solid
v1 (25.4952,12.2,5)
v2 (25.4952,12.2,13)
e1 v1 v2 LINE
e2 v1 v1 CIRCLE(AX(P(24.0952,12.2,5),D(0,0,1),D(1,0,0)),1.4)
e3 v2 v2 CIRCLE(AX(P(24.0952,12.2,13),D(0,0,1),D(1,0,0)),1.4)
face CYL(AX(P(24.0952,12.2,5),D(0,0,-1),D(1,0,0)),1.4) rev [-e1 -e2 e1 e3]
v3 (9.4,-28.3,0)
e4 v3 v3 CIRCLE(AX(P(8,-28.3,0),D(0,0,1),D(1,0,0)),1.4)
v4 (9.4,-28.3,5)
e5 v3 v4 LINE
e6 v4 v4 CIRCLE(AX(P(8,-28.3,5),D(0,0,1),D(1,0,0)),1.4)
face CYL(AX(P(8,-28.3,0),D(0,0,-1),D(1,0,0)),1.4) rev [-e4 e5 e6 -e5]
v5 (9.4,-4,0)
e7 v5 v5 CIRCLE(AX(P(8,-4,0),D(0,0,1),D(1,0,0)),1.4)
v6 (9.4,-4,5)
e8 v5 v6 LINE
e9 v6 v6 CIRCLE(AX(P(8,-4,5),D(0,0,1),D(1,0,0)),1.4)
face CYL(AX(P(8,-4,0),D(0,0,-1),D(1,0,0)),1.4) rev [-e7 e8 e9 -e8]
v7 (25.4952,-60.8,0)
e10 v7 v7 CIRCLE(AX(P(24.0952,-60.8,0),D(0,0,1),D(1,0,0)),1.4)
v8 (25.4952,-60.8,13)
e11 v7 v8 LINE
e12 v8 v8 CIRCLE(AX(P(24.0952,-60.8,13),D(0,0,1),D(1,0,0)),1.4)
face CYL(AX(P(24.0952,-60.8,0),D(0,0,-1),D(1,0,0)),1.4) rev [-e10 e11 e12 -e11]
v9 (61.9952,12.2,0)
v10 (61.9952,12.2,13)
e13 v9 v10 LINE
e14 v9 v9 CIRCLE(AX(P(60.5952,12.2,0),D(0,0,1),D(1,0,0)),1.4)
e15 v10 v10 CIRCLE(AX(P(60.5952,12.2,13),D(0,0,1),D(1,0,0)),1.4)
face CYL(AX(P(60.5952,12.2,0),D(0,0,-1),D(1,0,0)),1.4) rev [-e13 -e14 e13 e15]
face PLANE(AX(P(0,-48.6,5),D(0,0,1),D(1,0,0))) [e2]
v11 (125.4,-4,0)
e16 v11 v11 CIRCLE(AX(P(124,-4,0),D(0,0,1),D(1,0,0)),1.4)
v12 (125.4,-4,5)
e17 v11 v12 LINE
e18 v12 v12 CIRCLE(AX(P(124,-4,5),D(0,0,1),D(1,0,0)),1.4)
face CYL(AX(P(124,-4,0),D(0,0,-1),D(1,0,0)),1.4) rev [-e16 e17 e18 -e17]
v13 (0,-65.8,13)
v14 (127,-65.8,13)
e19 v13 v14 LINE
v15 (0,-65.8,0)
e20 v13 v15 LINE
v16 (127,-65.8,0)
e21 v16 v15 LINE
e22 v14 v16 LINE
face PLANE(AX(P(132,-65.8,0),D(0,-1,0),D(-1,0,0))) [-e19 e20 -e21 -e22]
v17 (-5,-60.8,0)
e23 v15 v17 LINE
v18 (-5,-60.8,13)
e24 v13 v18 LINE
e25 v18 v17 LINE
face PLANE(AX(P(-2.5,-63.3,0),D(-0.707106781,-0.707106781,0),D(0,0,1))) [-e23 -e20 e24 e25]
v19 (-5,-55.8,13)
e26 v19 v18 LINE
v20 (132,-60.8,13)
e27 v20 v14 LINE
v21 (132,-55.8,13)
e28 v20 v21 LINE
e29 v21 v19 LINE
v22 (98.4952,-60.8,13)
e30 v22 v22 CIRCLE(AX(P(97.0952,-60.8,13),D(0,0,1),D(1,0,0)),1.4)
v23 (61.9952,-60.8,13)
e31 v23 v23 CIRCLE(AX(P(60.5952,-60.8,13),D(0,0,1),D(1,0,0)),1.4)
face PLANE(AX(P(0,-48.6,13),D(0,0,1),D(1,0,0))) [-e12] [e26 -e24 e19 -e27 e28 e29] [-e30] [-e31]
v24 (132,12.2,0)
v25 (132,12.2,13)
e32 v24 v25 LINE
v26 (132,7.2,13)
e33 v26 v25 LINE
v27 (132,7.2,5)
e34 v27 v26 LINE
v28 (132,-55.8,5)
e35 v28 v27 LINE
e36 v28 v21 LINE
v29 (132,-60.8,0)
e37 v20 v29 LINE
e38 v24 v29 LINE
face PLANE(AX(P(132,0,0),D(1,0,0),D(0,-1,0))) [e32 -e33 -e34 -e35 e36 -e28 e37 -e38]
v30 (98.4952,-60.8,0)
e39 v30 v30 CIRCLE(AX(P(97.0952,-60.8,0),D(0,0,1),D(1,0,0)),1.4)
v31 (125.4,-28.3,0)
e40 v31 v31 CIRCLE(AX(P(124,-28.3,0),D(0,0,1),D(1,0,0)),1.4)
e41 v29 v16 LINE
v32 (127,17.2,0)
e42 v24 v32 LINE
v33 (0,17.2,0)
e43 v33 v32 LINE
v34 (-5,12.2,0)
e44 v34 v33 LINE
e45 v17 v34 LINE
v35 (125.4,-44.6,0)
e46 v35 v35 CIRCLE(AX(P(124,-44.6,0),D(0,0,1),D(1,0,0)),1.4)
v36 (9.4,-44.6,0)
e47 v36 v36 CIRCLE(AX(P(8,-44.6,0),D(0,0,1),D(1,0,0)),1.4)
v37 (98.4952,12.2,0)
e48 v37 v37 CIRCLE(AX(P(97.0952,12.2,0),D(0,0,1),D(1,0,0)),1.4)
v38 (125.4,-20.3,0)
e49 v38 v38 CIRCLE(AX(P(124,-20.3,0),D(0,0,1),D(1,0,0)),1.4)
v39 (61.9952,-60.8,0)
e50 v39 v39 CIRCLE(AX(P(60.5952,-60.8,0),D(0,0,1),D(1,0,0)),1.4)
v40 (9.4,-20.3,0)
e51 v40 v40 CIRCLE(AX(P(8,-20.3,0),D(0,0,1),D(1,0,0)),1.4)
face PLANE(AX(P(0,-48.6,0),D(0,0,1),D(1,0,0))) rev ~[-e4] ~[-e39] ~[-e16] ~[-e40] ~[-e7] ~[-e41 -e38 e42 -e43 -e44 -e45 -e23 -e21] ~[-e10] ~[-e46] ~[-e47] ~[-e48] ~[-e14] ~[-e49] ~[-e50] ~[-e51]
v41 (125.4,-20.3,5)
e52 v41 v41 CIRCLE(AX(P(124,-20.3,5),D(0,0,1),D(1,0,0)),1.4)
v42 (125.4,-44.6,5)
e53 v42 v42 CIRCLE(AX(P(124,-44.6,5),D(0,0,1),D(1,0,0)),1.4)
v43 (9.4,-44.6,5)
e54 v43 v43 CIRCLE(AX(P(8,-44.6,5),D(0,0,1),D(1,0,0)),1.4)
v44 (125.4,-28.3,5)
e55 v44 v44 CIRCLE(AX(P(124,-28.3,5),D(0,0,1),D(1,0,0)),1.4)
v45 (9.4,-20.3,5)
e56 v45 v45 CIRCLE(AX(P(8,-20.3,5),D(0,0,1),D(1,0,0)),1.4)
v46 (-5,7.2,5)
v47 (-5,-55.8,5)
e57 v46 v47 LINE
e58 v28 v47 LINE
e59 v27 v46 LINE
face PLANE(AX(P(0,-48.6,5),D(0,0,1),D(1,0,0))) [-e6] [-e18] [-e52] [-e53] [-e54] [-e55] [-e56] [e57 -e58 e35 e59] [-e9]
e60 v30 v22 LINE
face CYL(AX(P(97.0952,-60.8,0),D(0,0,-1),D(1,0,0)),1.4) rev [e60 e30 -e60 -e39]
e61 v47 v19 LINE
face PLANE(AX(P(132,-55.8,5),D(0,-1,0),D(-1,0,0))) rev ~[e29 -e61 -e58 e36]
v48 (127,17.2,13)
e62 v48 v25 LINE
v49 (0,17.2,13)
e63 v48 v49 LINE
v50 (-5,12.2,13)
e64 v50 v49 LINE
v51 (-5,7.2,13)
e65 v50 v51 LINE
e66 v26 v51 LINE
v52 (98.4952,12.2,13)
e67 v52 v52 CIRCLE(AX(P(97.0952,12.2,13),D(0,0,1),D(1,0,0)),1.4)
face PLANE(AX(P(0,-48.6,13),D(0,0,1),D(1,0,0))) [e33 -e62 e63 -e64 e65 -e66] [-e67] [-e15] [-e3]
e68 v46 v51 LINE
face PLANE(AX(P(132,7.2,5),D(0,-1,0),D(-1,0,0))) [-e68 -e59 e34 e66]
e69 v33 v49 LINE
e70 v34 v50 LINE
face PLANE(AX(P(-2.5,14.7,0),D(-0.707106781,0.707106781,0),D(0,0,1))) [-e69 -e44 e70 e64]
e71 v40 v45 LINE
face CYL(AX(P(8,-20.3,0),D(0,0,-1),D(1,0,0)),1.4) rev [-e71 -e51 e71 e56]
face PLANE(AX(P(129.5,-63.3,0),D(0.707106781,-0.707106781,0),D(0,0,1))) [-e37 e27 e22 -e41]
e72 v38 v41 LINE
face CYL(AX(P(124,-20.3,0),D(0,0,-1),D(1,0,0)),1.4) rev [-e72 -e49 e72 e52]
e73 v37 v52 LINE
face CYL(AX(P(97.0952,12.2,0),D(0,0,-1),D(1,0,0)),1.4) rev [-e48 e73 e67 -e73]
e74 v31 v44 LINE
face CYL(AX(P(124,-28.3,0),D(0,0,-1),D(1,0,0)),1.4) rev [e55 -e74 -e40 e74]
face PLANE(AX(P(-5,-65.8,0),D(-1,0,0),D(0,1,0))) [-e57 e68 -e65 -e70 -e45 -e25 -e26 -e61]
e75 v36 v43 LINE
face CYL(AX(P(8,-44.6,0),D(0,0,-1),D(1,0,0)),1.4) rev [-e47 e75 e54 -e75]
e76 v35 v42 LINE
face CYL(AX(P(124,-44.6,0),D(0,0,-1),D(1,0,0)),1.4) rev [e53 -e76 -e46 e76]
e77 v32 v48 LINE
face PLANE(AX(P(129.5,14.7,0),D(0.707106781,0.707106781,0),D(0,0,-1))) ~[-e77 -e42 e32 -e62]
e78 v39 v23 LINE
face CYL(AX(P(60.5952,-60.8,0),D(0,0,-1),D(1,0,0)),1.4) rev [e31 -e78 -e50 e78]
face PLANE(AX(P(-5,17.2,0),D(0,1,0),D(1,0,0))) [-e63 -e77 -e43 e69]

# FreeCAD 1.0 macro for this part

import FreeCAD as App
import Part
import Sketcher

V = App.Vector


def edges_at(feature, points):
    """Names of the edges that pass closest to the given points."""
    edges = feature.Shape.Edges
    near = lambda p: min(range(len(edges)), key=lambda i: edges[i].distToShape(Part.Vertex(*p))[0])
    return sorted({f"Edge{near(p) + 1}" for p in points})


def add_polygon(sketch, points):
    """Adds a closed chain of lines whose ends are joined by coincident constraints."""
    first, n = sketch.GeometryCount, len(points)
    for a, b in zip(points, points[1:] + points[:1]):
        sketch.addGeometry(Part.LineSegment(App.Vector(*a, 0), App.Vector(*b, 0)), False)
    for i in range(n):
        sketch.addConstraint(Sketcher.Constraint("Coincident", first + i, 2, first + (i + 1) % n, 1))

doc = App.newDocument("Part")
body = doc.addObject("PartDesign::Body", "Body")

sketch1 = body.newObject("Sketcher::SketchObject", "Sketch")
sketch1.AttachmentSupport = (doc.getObject("XY_Plane"), [""])
sketch1.MapMode = "FlatFace"
add_polygon(sketch1, [(132, 17.2), (-5, 17.2), (-5, -65.8), (132, -65.8)])
sketch1.addGeometry(Part.Circle(V(8, -44.6, 0), V(0, 0, 1), 1.4), False)
sketch1.addGeometry(Part.Circle(V(8, -28.3, 0), V(0, 0, 1), 1.4), False)
sketch1.addGeometry(Part.Circle(V(124, -44.6, 0), V(0, 0, 1), 1.4), False)
sketch1.addGeometry(Part.Circle(V(124, -28.3, 0), V(0, 0, 1), 1.4), False)
sketch1.addGeometry(Part.Circle(V(8, -20.3, 0), V(0, 0, 1), 1.4), False)
sketch1.addGeometry(Part.Circle(V(8, -4, 0), V(0, 0, 1), 1.4), False)
sketch1.addGeometry(Part.Circle(V(124, -20.3, 0), V(0, 0, 1), 1.4), False)
sketch1.addGeometry(Part.Circle(V(124, -4, 0), V(0, 0, 1), 1.4), False)
sketch1.addGeometry(Part.Circle(V(24.1, -60.8, 0), V(0, 0, 1), 1.4), False)
sketch1.addGeometry(Part.Circle(V(60.6, -60.8, 0), V(0, 0, 1), 1.4), False)
sketch1.addGeometry(Part.Circle(V(97.1, -60.8, 0), V(0, 0, 1), 1.4), False)
sketch1.addGeometry(Part.Circle(V(97.1, 12.2, 0), V(0, 0, 1), 1.4), False)
sketch1.addGeometry(Part.Circle(V(60.6, 12.2, 0), V(0, 0, 1), 1.4), False)
sketch1.addConstraint([
    Sketcher.Constraint("Horizontal", 0),
    Sketcher.Constraint("Vertical", 1),
    Sketcher.Constraint("Horizontal", 2),
    Sketcher.Constraint("Vertical", 3),
    Sketcher.Constraint("Equal", 4, 5),
    Sketcher.Constraint("Equal", 5, 6),
    Sketcher.Constraint("Equal", 6, 7),
    Sketcher.Constraint("Equal", 7, 8),
    Sketcher.Constraint("Equal", 8, 9),
    Sketcher.Constraint("Equal", 9, 10),
    Sketcher.Constraint("Equal", 10, 11),
    Sketcher.Constraint("Equal", 11, 12),
    Sketcher.Constraint("Equal", 12, 13),
    Sketcher.Constraint("Equal", 13, 14),
    Sketcher.Constraint("Equal", 14, 15),
    Sketcher.Constraint("Equal", 15, 16),
    Sketcher.Constraint("Horizontal", 4, 3, 6, 3),
    Sketcher.Constraint("Horizontal", 5, 3, 7, 3),
    Sketcher.Constraint("Horizontal", 8, 3, 10, 3),
    Sketcher.Constraint("Horizontal", 9, 3, 11, 3),
    Sketcher.Constraint("Horizontal", 12, 3, 13, 3),
    Sketcher.Constraint("Horizontal", 13, 3, 14, 3),
    Sketcher.Constraint("Horizontal", 15, 3, 16, 3),
    Sketcher.Constraint("Vertical", 4, 3, 5, 3),
    Sketcher.Constraint("Vertical", 6, 3, 7, 3),
    Sketcher.Constraint("Vertical", 5, 3, 8, 3),
    Sketcher.Constraint("Vertical", 8, 3, 9, 3),
    Sketcher.Constraint("Vertical", 7, 3, 10, 3),
    Sketcher.Constraint("Vertical", 10, 3, 11, 3),
    Sketcher.Constraint("Vertical", 14, 3, 15, 3),
    Sketcher.Constraint("Vertical", 13, 3, 16, 3),
    Sketcher.Constraint("Diameter", 4, 2.8),
    Sketcher.Constraint("DistanceX", 0, 2, 0, 1, 137.0),
    Sketcher.Constraint("DistanceY", 1, 2, 1, 1, 83.0),
    Sketcher.Constraint("DistanceX", -1, 1, 4, 3, 8.0),
    Sketcher.Constraint("DistanceX", -1, 1, 6, 3, 124.0),
    Sketcher.Constraint("DistanceY", 9, 3, -1, 1, 4.0),
    Sketcher.Constraint("DistanceX", 0, 2, -1, 1, 5.0),
    Sketcher.Constraint("DistanceY", 5, 3, 8, 3, 8.0),
    Sketcher.Constraint("DistanceY", 14, 3, 15, 3, 73.0),
    Sketcher.Constraint("DistanceY", 16, 3, 0, 2, 5.0),
    Sketcher.Constraint("DistanceY", 4, 3, -1, 1, 44.6),
    Sketcher.Constraint("DistanceY", 5, 3, -1, 1, 28.3),
    Sketcher.Constraint("DistanceY", 12, 3, -1, 1, 60.8),
    Sketcher.Constraint("DistanceX", 12, 3, 13, 3, 36.5),
    Sketcher.Constraint("DistanceX", 13, 3, 14, 3, 36.5),
    Sketcher.Constraint("DistanceX", -1, 1, 12, 3, 24.0952),
])
pad1 = body.newObject("PartDesign::Pad", "Pad")
pad1.Profile = sketch1
pad1.Length = 5
doc.recompute()

chamfer = body.newObject("PartDesign::Chamfer", "Chamfer")
chamfer.Base = (pad1, edges_at(pad1, [
    (-5, 17.2, 2.5),
    (132, 17.2, 2.5),
    (-5, -65.8, 2.5),
    (132, -65.8, 2.5),
]))
chamfer.Size = 5

sketch2 = body.newObject("Sketcher::SketchObject", "Sketch001")
sketch2.AttachmentSupport = (doc.getObject("XY_Plane"), [""])
sketch2.MapMode = "FlatFace"
sketch2.AttachmentOffset = App.Placement(V(0, 0, 5), App.Rotation())
add_polygon(sketch2, [(127, -65.8), (132, -60.8), (132, -55.8), (-5, -55.8), (-5, -60.8), (0, -65.8)])
sketch2.addGeometry(Part.Circle(V(24.1, -60.8, 0), V(0, 0, 1), 1.4), False)
sketch2.addGeometry(Part.Circle(V(60.6, -60.8, 0), V(0, 0, 1), 1.4), False)
sketch2.addGeometry(Part.Circle(V(97.1, -60.8, 0), V(0, 0, 1), 1.4), False)
add_polygon(sketch2, [(-5, 7.2), (132, 7.2), (132, 12.2), (127, 17.2), (0, 17.2), (-5, 12.2)])
sketch2.addGeometry(Part.Circle(V(24.1, 12.2, 0), V(0, 0, 1), 1.4), False)
sketch2.addGeometry(Part.Circle(V(60.6, 12.2, 0), V(0, 0, 1), 1.4), False)
sketch2.addGeometry(Part.Circle(V(97.1, 12.2, 0), V(0, 0, 1), 1.4), False)
sketch2.addConstraint([
    Sketcher.Constraint("Vertical", 1),
    Sketcher.Constraint("Horizontal", 2),
    Sketcher.Constraint("Vertical", 3),
    Sketcher.Constraint("Horizontal", 5),
    Sketcher.Constraint("Horizontal", 9),
    Sketcher.Constraint("Vertical", 10),
    Sketcher.Constraint("Horizontal", 12),
    Sketcher.Constraint("Vertical", 14),
    Sketcher.Constraint("Equal", 6, 7),
    Sketcher.Constraint("Equal", 7, 8),
    Sketcher.Constraint("Equal", 8, 15),
    Sketcher.Constraint("Equal", 15, 16),
    Sketcher.Constraint("Equal", 16, 17),
    Sketcher.Constraint("PointOnObject", 4, 2, -2),
    Sketcher.Constraint("PointOnObject", 12, 2, -2),
    Sketcher.Constraint("Perpendicular", 0, 4),
    Sketcher.Constraint("Parallel", 4, 11),
    Sketcher.Constraint("Perpendicular", 11, 13),
    Sketcher.Constraint("Horizontal", 6, 3, 7, 3),
    Sketcher.Constraint("Horizontal", 7, 3, 8, 3),
    Sketcher.Constraint("Horizontal", 15, 3, 16, 3),
    Sketcher.Constraint("Horizontal", 16, 3, 17, 3),
    Sketcher.Constraint("Horizontal", 8, 3, 0, 2),
    Sketcher.Constraint("Horizontal", 0, 2, 3, 2),
    Sketcher.Constraint("Horizontal", 17, 3, 10, 2),
    Sketcher.Constraint("Horizontal", 10, 2, 13, 2),
    Sketcher.Constraint("Vertical", 6, 3, 15, 3),
    Sketcher.Constraint("Vertical", 7, 3, 16, 3),
    Sketcher.Constraint("Vertical", 8, 3, 17, 3),
    Sketcher.Constraint("Vertical", 1, 2, 9, 2),
    Sketcher.Constraint("Vertical", 5, 2, 11, 2),
    Sketcher.Constraint("Vertical", 3, 2, 13, 2),
    Sketcher.Constraint("Equal", 3, 10),
    Sketcher.Constraint("DistanceY", 4, 2, 2, 2, 10.0),
    Sketcher.Constraint("Diameter", 6, 2.8),
    Sketcher.Constraint("DistanceX", 2, 2, 2, 1, 137.0),
    Sketcher.Constraint("DistanceX", 5, 1, 5, 2, 127.0),
    Sketcher.Constraint("DistanceX", 6, 3, 8, 3, 73.0),
    Sketcher.Constraint("DistanceY", 6, 3, 15, 3, 73.0),
    Sketcher.Constraint("DistanceY", 6, 3, -1, 1, 60.8),
    Sketcher.Constraint("DistanceX", 6, 3, 7, 3, 36.5),
    Sketcher.Constraint("DistanceX", -1, 1, 6, 3, 24.0952),
])
pad2 = body.newObject("PartDesign::Pad", "Pad001")
pad2.Profile = sketch2
pad2.Length = 8

doc.recompute()
